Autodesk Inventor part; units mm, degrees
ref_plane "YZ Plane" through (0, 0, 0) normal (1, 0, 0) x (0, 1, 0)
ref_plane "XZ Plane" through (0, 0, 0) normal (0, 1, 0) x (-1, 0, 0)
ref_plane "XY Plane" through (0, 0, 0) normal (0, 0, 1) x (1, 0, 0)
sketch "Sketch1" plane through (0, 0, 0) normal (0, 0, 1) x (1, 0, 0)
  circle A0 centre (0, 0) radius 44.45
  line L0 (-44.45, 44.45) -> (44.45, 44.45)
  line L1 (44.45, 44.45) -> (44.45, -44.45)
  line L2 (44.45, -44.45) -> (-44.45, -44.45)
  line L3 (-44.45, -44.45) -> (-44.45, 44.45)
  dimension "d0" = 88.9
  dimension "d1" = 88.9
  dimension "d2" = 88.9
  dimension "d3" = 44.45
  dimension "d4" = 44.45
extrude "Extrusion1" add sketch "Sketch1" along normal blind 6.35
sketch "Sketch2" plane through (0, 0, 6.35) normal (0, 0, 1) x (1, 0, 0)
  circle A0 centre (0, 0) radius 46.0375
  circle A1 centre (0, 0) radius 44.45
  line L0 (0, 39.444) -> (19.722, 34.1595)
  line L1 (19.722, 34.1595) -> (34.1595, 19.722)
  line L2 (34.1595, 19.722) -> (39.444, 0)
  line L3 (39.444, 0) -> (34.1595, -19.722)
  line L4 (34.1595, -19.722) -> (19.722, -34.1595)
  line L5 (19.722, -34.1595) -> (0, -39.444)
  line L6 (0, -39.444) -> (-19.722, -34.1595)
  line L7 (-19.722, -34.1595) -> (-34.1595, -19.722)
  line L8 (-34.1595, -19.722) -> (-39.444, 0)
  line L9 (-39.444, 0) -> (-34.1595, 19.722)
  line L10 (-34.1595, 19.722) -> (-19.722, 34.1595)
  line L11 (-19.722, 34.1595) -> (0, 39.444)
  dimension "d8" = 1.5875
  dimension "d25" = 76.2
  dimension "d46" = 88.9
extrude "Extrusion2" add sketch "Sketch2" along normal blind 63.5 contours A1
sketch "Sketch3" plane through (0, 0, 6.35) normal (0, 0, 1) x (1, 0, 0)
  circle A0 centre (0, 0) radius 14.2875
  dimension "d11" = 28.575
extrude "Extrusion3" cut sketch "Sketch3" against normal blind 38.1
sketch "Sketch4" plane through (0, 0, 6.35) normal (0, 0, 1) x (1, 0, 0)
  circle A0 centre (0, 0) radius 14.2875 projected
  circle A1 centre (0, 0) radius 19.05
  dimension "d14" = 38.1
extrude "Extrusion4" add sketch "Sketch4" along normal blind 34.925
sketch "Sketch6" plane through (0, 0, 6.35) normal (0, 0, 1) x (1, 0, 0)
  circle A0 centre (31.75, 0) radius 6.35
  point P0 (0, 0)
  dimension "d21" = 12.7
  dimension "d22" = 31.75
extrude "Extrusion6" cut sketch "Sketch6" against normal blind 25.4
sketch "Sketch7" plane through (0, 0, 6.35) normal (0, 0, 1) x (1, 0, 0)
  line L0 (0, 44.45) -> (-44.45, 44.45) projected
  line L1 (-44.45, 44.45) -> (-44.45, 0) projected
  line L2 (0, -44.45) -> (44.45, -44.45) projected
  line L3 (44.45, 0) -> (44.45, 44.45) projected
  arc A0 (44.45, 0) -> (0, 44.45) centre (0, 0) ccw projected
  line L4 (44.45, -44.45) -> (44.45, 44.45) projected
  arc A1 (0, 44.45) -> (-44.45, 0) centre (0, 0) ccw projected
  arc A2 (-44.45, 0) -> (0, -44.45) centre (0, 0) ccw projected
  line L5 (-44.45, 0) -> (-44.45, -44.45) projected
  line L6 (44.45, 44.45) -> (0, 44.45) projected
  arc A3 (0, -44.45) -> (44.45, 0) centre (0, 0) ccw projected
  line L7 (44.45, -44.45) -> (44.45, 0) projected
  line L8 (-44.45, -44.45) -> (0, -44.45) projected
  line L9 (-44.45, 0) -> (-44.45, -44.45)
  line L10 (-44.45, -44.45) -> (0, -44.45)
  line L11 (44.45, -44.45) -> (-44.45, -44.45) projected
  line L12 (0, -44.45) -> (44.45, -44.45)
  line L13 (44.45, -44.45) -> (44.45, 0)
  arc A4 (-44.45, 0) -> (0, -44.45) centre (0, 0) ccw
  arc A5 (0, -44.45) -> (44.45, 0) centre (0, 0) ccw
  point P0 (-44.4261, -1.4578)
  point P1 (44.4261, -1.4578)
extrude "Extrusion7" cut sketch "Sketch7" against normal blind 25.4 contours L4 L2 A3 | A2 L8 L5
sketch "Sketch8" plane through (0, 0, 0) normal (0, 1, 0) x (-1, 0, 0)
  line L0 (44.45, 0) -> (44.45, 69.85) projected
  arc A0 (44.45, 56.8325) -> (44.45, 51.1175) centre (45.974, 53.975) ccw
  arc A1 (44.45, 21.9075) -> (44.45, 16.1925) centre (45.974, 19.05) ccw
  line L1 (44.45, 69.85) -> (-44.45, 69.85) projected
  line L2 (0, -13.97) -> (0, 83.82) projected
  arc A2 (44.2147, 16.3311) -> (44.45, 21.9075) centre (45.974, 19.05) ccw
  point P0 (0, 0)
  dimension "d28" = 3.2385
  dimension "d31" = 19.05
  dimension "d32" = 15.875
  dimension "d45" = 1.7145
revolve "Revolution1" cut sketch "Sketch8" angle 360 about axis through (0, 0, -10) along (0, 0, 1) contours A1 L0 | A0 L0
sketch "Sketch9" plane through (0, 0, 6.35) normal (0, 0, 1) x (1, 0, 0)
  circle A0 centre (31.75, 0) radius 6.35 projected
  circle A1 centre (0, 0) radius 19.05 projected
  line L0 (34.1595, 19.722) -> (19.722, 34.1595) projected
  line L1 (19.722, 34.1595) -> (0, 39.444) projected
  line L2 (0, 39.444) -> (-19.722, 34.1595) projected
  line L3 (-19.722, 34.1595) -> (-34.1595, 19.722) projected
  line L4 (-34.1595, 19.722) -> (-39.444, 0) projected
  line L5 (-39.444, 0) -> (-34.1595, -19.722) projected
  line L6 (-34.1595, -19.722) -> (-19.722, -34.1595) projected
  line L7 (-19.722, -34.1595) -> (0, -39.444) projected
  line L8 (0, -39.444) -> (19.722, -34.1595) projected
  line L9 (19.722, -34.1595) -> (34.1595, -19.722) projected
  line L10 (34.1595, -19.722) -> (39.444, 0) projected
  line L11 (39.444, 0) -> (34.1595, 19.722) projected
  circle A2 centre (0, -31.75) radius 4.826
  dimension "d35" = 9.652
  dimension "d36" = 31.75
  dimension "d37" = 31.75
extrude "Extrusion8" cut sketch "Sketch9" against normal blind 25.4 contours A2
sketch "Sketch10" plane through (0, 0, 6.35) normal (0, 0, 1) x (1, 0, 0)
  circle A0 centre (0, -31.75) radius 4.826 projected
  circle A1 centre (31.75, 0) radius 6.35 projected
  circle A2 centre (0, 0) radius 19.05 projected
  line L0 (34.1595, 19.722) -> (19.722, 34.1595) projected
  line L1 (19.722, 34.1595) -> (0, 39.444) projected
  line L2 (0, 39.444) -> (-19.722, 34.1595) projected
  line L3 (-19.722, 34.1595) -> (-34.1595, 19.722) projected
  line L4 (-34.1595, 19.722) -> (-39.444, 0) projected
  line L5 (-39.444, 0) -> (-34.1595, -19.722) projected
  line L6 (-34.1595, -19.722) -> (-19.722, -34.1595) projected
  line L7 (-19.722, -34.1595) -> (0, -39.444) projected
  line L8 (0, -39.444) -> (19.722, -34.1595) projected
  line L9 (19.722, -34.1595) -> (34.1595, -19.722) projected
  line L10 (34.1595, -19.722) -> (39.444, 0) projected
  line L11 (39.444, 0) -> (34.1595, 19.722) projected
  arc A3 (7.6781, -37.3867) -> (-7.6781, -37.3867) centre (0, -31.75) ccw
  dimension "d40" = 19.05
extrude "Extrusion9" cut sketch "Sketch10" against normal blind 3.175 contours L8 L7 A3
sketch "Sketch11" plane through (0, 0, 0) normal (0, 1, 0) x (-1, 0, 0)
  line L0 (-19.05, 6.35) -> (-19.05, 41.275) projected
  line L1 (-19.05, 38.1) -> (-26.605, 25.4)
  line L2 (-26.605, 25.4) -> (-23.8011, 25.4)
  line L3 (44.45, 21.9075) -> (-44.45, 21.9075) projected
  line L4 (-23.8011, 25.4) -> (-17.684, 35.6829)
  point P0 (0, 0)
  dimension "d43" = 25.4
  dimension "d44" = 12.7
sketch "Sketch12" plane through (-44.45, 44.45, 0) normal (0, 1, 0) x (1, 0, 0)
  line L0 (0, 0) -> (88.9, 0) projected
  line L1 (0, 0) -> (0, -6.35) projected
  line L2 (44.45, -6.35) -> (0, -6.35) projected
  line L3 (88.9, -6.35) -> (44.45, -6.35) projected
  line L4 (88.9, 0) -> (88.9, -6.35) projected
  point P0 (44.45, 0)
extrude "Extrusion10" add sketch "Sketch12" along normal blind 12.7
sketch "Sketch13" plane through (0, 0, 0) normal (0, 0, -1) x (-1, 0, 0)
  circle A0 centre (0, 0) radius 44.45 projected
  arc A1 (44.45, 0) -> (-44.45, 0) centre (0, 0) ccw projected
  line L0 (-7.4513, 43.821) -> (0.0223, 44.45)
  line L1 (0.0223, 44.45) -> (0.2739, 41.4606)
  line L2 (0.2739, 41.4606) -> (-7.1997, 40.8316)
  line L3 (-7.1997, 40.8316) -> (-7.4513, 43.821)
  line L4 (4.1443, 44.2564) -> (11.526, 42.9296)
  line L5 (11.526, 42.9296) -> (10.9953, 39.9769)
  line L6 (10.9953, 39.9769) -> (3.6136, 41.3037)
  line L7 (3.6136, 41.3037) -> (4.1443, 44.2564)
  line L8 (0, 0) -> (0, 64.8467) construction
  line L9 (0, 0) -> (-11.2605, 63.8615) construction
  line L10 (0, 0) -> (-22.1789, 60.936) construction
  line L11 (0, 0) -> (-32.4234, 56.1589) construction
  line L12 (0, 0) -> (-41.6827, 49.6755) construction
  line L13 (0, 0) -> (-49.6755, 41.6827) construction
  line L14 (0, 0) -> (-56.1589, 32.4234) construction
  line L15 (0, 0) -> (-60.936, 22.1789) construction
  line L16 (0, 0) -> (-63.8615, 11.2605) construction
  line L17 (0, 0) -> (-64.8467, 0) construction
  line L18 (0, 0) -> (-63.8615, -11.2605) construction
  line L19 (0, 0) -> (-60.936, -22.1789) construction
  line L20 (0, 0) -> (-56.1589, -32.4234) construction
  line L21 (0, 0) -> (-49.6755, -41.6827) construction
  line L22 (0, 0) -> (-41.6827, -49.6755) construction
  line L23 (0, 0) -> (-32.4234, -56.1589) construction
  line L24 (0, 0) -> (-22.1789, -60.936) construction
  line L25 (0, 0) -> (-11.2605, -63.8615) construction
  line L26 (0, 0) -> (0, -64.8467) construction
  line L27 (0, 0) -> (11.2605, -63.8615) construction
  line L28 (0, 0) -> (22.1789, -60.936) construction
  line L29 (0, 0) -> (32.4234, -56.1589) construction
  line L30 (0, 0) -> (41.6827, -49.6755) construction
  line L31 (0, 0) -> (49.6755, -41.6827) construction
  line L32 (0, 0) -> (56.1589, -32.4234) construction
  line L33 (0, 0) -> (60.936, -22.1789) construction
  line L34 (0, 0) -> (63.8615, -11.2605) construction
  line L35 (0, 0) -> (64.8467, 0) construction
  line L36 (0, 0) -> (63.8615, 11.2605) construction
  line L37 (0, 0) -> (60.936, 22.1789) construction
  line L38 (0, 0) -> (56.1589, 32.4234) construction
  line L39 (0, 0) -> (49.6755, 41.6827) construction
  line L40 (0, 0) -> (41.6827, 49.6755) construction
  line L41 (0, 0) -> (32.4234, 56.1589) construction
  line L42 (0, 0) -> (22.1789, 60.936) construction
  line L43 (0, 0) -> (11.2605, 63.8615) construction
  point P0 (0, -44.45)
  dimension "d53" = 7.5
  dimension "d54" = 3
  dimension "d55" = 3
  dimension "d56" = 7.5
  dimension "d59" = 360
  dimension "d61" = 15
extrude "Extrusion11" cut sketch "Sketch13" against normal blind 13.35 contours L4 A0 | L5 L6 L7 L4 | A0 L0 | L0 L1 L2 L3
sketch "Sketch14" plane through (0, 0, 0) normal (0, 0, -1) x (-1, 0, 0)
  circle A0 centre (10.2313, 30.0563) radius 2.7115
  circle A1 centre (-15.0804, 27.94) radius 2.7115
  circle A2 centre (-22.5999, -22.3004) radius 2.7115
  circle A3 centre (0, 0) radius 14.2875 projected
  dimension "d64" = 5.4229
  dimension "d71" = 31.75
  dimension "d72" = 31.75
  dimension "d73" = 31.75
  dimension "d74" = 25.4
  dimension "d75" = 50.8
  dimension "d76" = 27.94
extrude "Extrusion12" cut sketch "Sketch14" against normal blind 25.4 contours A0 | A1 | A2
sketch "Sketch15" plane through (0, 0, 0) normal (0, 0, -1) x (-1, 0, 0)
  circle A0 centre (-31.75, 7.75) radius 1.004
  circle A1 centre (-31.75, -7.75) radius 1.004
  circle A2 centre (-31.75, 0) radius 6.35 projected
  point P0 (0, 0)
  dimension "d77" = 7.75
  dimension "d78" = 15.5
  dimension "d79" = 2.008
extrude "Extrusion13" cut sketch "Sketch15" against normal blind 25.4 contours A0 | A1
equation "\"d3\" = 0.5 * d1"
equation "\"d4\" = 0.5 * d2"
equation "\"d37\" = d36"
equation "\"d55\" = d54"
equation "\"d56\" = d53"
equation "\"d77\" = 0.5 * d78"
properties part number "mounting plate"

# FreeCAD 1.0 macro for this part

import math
import FreeCAD as App
import Part
import Sketcher
Q = App.Units.Quantity

doc = App.newDocument("Part")
params = doc.addObject("Spreadsheet::Sheet", "Params")
for row, (alias, value) in enumerate([
    ("sketch1_width", "3.5 in"),
    ("pad1_length", "0.25 in"),
    ("sketch2_diameter", "3.5 in"),
    ("pad2_length", "2.5 in"),
    ("sketch3_diameter", "1.125 in"),
    ("pocket1_length", "1.5 in"),
    ("sketch4_diameter", "1.5 in"),
    ("sketch4_diameter2", "1.125 in"),
    ("pad3_length", "1.375 in"),
    ("sketch5_diameter", "0.5 in"),
    ("pocket2_length", "1 in"),
    ("sketch6_radius", "1.75 in"),
    ("pocket3_length", "1 in"),
    ("sketch7_height", "0.225 in"),
    ("groove_angle", "360 deg"),
    ("sketch8_diameter", "0.38 in"),
    ("pocket4_length", "1 in"),
    ("sketch9_radius", "0.375 in"),
    ("sketch9_diameter", "0.38 in"),
    ("pocket5_length", "0.125 in"),
    ("sketch10_width", "3.5 in"),
    ("sketch10_height", "0.25 in"),
    ("pad4_length", "0.5 in"),
    ("sketch11_radius", "1.75 in"),
    ("pocket6_length", "0.5255906 in"),
    ("pocket7_length", "1 in"),
    ("pocket8_length", "1 in"),
], start=1):
    params.set(f"A{row}", alias)
    params.set(f"B{row}", "=" + value)
    params.setAlias(f"B{row}", alias)

body = doc.addObject("PartDesign::Body", "Body")

# Sketch on XY plane
sketch1 = body.newObject("Sketcher::SketchObject", "Sketch")
sketch1.AttachmentSupport = (doc.getObject("XY_Plane"), [""])
sketch1.MapMode = "FlatFace"
sketch1.addGeometry([
    Part.LineSegment(App.Vector(44, -44, 0), App.Vector(44, 44, 0)),
    Part.LineSegment(App.Vector(44, 44, 0), App.Vector(-44, 44, 0)),
    Part.LineSegment(App.Vector(-44, 44, 0), App.Vector(-44, -44, 0)),
    Part.LineSegment(App.Vector(-44, -44, 0), App.Vector(44, -44, 0)),
], False)
sketch1.addConstraint([
    Sketcher.Constraint("Coincident", 0, 2, 1, 1),
    Sketcher.Constraint("Coincident", 1, 2, 2, 1),
    Sketcher.Constraint("Coincident", 2, 2, 3, 1),
    Sketcher.Constraint("Coincident", 3, 2, 0, 1),
    Sketcher.Constraint("Vertical", 0),
    Sketcher.Constraint("Horizontal", 1),
    Sketcher.Constraint("Vertical", 2),
    Sketcher.Constraint("Horizontal", 3),
    Sketcher.Constraint("Symmetric", 0, 2, 2, 2, -1, 1),
    Sketcher.Constraint("Equal", 3, 0),
    Sketcher.Constraint("DistanceX", 1, 2, 1, 1, Q("3.5 in")),
])
sketch1.setExpression("Constraints[10]", "Params.sketch1_width")
pad1 = body.newObject("PartDesign::Pad", "Pad")
pad1.Profile = sketch1
pad1.setExpression("Length", "Params.pad1_length")

# Sketch on XY plane
sketch2 = body.newObject("Sketcher::SketchObject", "Sketch001")
sketch2.AttachmentSupport = (doc.getObject("XY_Plane"), [""])
sketch2.MapMode = "FlatFace"
sketch2.AttachmentOffset = App.Placement(App.Vector(0, 0, 0.25 * 25.4), App.Rotation())
sketch2.addGeometry([
    Part.Circle(App.Vector(0, 0, 0), App.Vector(0, 0, 1), 44),  # 0
    Part.LineSegment(App.Vector(-20, 34, 0), App.Vector(0, 39, 0)),  # 1
    Part.LineSegment(App.Vector(0, 39, 0), App.Vector(20, 34, 0)),  # 2
    Part.LineSegment(App.Vector(20, 34, 0), App.Vector(34, 20, 0)),  # 3
    Part.LineSegment(App.Vector(34, 20, 0), App.Vector(39, 0, 0)),  # 4
    Part.LineSegment(App.Vector(39, 0, 0), App.Vector(34, -20, 0)),  # 5
    Part.LineSegment(App.Vector(34, -20, 0), App.Vector(20, -34, 0)),  # 6
    Part.LineSegment(App.Vector(20, -34, 0), App.Vector(0, -39, 0)),  # 7
    Part.LineSegment(App.Vector(0, -39, 0), App.Vector(-20, -34, 0)),  # 8
    Part.LineSegment(App.Vector(-20, -34, 0), App.Vector(-34, -20, 0)),  # 9
    Part.LineSegment(App.Vector(-34, -20, 0), App.Vector(-39, 0, 0)),  # 10
    Part.LineSegment(App.Vector(-39, 0, 0), App.Vector(-34, 20, 0)),  # 11
    Part.LineSegment(App.Vector(-34, 20, 0), App.Vector(-20, 34, 0)),  # 12
], False)
sketch2.addConstraint([
    Sketcher.Constraint("Coincident", 1, 2, 2, 1),
    Sketcher.Constraint("Coincident", 2, 2, 3, 1),
    Sketcher.Constraint("Coincident", 3, 2, 4, 1),
    Sketcher.Constraint("Coincident", 4, 2, 5, 1),
    Sketcher.Constraint("Coincident", 5, 2, 6, 1),
    Sketcher.Constraint("Coincident", 6, 2, 7, 1),
    Sketcher.Constraint("Coincident", 7, 2, 8, 1),
    Sketcher.Constraint("Coincident", 8, 2, 9, 1),
    Sketcher.Constraint("Coincident", 9, 2, 10, 1),
    Sketcher.Constraint("Coincident", 10, 2, 11, 1),
    Sketcher.Constraint("Coincident", 11, 2, 12, 1),
    Sketcher.Constraint("Coincident", 12, 2, 1, 1),
    Sketcher.Constraint("Coincident", 0, 3, -1, 1),
    Sketcher.Constraint("Symmetric", 1, 2, 7, 2, -1, 1),
    Sketcher.Constraint("Symmetric", 2, 2, 8, 2, -1, 1),
    Sketcher.Constraint("Symmetric", 3, 2, 9, 2, -1, 1),
    Sketcher.Constraint("Symmetric", 4, 2, 10, 2, -1, 1),
    Sketcher.Constraint("Symmetric", 5, 2, 11, 2, -1, 1),
    Sketcher.Constraint("Symmetric", 6, 2, 12, 2, -1, 1),
    Sketcher.Constraint("Symmetric", 6, 2, 8, 2, -2),
    Sketcher.Constraint("Symmetric", 5, 2, 9, 2, -2),
    Sketcher.Constraint("PointOnObject", 1, 2, -2),
    Sketcher.Constraint("PointOnObject", 4, 2, -1),
    Sketcher.Constraint("Perpendicular", 1, 4),
    Sketcher.Constraint("Perpendicular", 3, 6),
    Sketcher.Constraint("Equal", 2, 3),
    Sketcher.Constraint("Equal", 3, 4),
    Sketcher.Constraint("Diameter", 0, Q("3.5 in")),
    Sketcher.Constraint("Angle", 1, Q("15 deg")),
    Sketcher.Constraint("DistanceX", 2, 2, 3, 2, Q("0.5684 in")),
])
sketch2.setExpression("Constraints[27]", "Params.sketch2_diameter")
pad2 = body.newObject("PartDesign::Pad", "Pad001")
pad2.Profile = sketch2
pad2.setExpression("Length", "Params.pad2_length")

# Sketch on XY plane
sketch3 = body.newObject("Sketcher::SketchObject", "Sketch002")
sketch3.AttachmentSupport = (doc.getObject("XY_Plane"), [""])
sketch3.MapMode = "FlatFace"
sketch3.AttachmentOffset = App.Placement(App.Vector(0, 0, 0.25 * 25.4), App.Rotation())
sketch3.addGeometry(Part.Circle(App.Vector(0, 0, 0), App.Vector(0, 0, 1), 14), False)
sketch3.addConstraint([
    Sketcher.Constraint("Coincident", 0, 3, -1, 1),
    Sketcher.Constraint("Diameter", 0, Q("1.125 in")),
])
sketch3.setExpression("Constraints[1]", "Params.sketch3_diameter")
pocket1 = body.newObject("PartDesign::Pocket", "Pocket")
pocket1.Profile = sketch3
pocket1.setExpression("Length", "Params.pocket1_length")

# Sketch on XY plane
sketch4 = body.newObject("Sketcher::SketchObject", "Sketch003")
sketch4.AttachmentSupport = (doc.getObject("XY_Plane"), [""])
sketch4.MapMode = "FlatFace"
sketch4.AttachmentOffset = App.Placement(App.Vector(0, 0, 0.25 * 25.4), App.Rotation())
sketch4.addGeometry([
    Part.Circle(App.Vector(0, 0, 0), App.Vector(0, 0, 1), 19),
    Part.Circle(App.Vector(0, 0, 0), App.Vector(0, 0, 1), 14),
], False)
sketch4.addConstraint([
    Sketcher.Constraint("Coincident", 0, 3, -1, 1),
    Sketcher.Constraint("Coincident", 1, 3, -1, 1),
    Sketcher.Constraint("Diameter", 0, Q("1.5 in")),
    Sketcher.Constraint("Diameter", 1, Q("1.125 in")),
])
sketch4.setExpression("Constraints[2]", "Params.sketch4_diameter")
sketch4.setExpression("Constraints[3]", "Params.sketch4_diameter2")
pad3 = body.newObject("PartDesign::Pad", "Pad002")
pad3.Profile = sketch4
pad3.setExpression("Length", "Params.pad3_length")

# Sketch on XY plane
sketch5 = body.newObject("Sketcher::SketchObject", "Sketch004")
sketch5.AttachmentSupport = (doc.getObject("XY_Plane"), [""])
sketch5.MapMode = "FlatFace"
sketch5.AttachmentOffset = App.Placement(App.Vector(0, 0, 0.25 * 25.4), App.Rotation())
sketch5.addGeometry(Part.Circle(App.Vector(32, 0, 0), App.Vector(0, 0, 1), 6), False)
sketch5.addConstraint([
    Sketcher.Constraint("PointOnObject", 0, 3, -1),
    Sketcher.Constraint("Diameter", 0, Q("0.5 in")),
    Sketcher.Constraint("DistanceX", -1, 1, 0, 3, Q("1.25 in")),
])
sketch5.setExpression("Constraints[1]", "Params.sketch5_diameter")
pocket2 = body.newObject("PartDesign::Pocket", "Pocket001")
pocket2.Profile = sketch5
pocket2.setExpression("Length", "Params.pocket2_length")

# Sketch on XY plane
sketch6 = body.newObject("Sketcher::SketchObject", "Sketch005")
sketch6.AttachmentSupport = (doc.getObject("XY_Plane"), [""])
sketch6.MapMode = "FlatFace"
sketch6.AttachmentOffset = App.Placement(App.Vector(0, 0, 0.25 * 25.4), App.Rotation())
sketch6.addGeometry([
    Part.LineSegment(App.Vector(44, -44, 0), App.Vector(44, 0, 0)),  # 0
    Part.ArcOfCircle(Part.Circle(App.Vector(0, 0, 0), App.Vector(0, 0, 1), 44), math.radians(-90), math.radians(0)),  # 1
    Part.LineSegment(App.Vector(0, -44, 0), App.Vector(44, -44, 0)),  # 2
    Part.ArcOfCircle(Part.Circle(App.Vector(0, 0, 0), App.Vector(0, 0, 1), 44), math.radians(180), math.radians(270)),  # 3
    Part.LineSegment(App.Vector(-44, 0, 0), App.Vector(-44, -44, 0)),  # 4
    Part.LineSegment(App.Vector(-44, -44, 0), App.Vector(0, -44, 0)),  # 5
], False)
sketch6.addConstraint([
    Sketcher.Constraint("Tangent", 0, 2, 1, 2),
    Sketcher.Constraint("Tangent", 1, 1, 2, 1),
    Sketcher.Constraint("Coincident", 2, 2, 0, 1),
    Sketcher.Constraint("Tangent", 3, 1, 4, 1),
    Sketcher.Constraint("Coincident", 4, 2, 5, 1),
    Sketcher.Constraint("Tangent", 5, 2, 3, 2),
    Sketcher.Constraint("Vertical", 0),
    Sketcher.Constraint("Horizontal", 2),
    Sketcher.Constraint("Vertical", 4),
    Sketcher.Constraint("Horizontal", 5),
    Sketcher.Constraint("Coincident", 1, 3, -1, 1),
    Sketcher.Constraint("Coincident", 3, 3, -1, 1),
    Sketcher.Constraint("Equal", 1, 3),
    Sketcher.Constraint("Radius", 1, Q("1.75 in")),
])
sketch6.setExpression("Constraints[13]", "Params.sketch6_radius")
pocket3 = body.newObject("PartDesign::Pocket", "Pocket002")
pocket3.Profile = sketch6
pocket3.setExpression("Length", "Params.pocket3_length")

# Sketch on XZ plane
sketch7 = body.newObject("Sketcher::SketchObject", "Sketch006")
sketch7.AttachmentSupport = (doc.getObject("XZ_Plane"), [""])
sketch7.MapMode = "FlatFace"
sketch7.addGeometry([
    Part.ArcOfCircle(Part.Circle(App.Vector(-46, 19.1, 0), App.Vector(0, 0, 1), 3.2), math.radians(-62), math.radians(62)),
    Part.LineSegment(App.Vector(-44.5, 16.2, 0), App.Vector(-44.5, 21.9, 0)),
    Part.ArcOfCircle(Part.Circle(App.Vector(-46, 54, 0), App.Vector(0, 0, 1), 3.2), math.radians(-62), math.radians(62)),
    Part.LineSegment(App.Vector(-44.5, 51.1, 0), App.Vector(-44.5, 56.8, 0)),
], False)
sketch7.addConstraint([
    Sketcher.Constraint("Coincident", 0, 1, 1, 1),
    Sketcher.Constraint("Coincident", 1, 2, 0, 2),
    Sketcher.Constraint("Coincident", 2, 1, 3, 1),
    Sketcher.Constraint("Coincident", 3, 2, 2, 2),
    Sketcher.Constraint("Vertical", 1),
    Sketcher.Constraint("Vertical", 3),
    Sketcher.Constraint("Equal", 0, 2),
    Sketcher.Constraint("Vertical", 0, 3, 2, 3),
    Sketcher.Constraint("Vertical", 1, 2, 2, 1),
    Sketcher.Constraint("Radius", 0, Q("0.1275 in")),
    Sketcher.Constraint("DistanceY", -1, 1, 0, 3, Q("0.75 in")),
    Sketcher.Constraint("DistanceY", 0, 1, 3, 2, Q("1.6 in")),
    Sketcher.Constraint("DistanceY", 1, 1, 1, 2, Q("0.225 in")),
    Sketcher.Constraint("DistanceX", 0, 3, -1, 1, Q("1.81 in")),
])
sketch7.setExpression("Constraints[12]", "Params.sketch7_height")
groove = body.newObject("PartDesign::Groove", "Groove")
groove.Profile = sketch7
groove.ReferenceAxis = (sketch7, ["V_Axis"])
groove.setExpression("Angle", "Params.groove_angle")

# Sketch on XY plane
sketch8 = body.newObject("Sketcher::SketchObject", "Sketch007")
sketch8.AttachmentSupport = (doc.getObject("XY_Plane"), [""])
sketch8.MapMode = "FlatFace"
sketch8.AttachmentOffset = App.Placement(App.Vector(0, 0, 0.25 * 25.4), App.Rotation())
sketch8.addGeometry(Part.Circle(App.Vector(0, -31.8, 0), App.Vector(0, 0, 1), 4.8), False)
sketch8.addConstraint([
    Sketcher.Constraint("PointOnObject", 0, 3, -2),
    Sketcher.Constraint("Diameter", 0, Q("0.38 in")),
    Sketcher.Constraint("DistanceY", 0, 3, -1, 1, Q("1.25 in")),
])
sketch8.setExpression("Constraints[1]", "Params.sketch8_diameter")
pocket4 = body.newObject("PartDesign::Pocket", "Pocket003")
pocket4.Profile = sketch8
pocket4.setExpression("Length", "Params.pocket4_length")

# Sketch on XY plane
sketch9 = body.newObject("Sketcher::SketchObject", "Sketch008")
sketch9.AttachmentSupport = (doc.getObject("XY_Plane"), [""])
sketch9.MapMode = "FlatFace"
sketch9.AttachmentOffset = App.Placement(App.Vector(0, 0, 0.25 * 25.4), App.Rotation())
sketch9.addGeometry([
    Part.LineSegment(App.Vector(0, -39.4, 0), App.Vector(7.7, -37.4, 0)),
    Part.ArcOfCircle(Part.Circle(App.Vector(0, -31.8, 0), App.Vector(0, 0, 1), 9.5), math.radians(-36), math.radians(216)),
    Part.LineSegment(App.Vector(-7.7, -37.4, 0), App.Vector(0, -39.4, 0)),
    Part.Circle(App.Vector(0, -31.8, 0), App.Vector(0, 0, 1), 4.8),
], False)
sketch9.addConstraint([
    Sketcher.Constraint("Coincident", 0, 2, 1, 1),
    Sketcher.Constraint("Coincident", 1, 2, 2, 1),
    Sketcher.Constraint("Coincident", 2, 2, 0, 1),
    Sketcher.Constraint("Coincident", 3, 3, 1, 3),
    Sketcher.Constraint("Symmetric", 0, 2, 1, 2, -2),
    Sketcher.Constraint("PointOnObject", 2, 2, -2),
    Sketcher.Constraint("Radius", 1, Q("0.375 in")),
    Sketcher.Constraint("Diameter", 3, Q("0.38 in")),
    Sketcher.Constraint("Angle", 0, Q("15 deg")),
    Sketcher.Constraint("DistanceY", 1, 3, -1, 1, Q("1.25 in")),
    Sketcher.Constraint("DistanceY", 2, 2, 1, 2, Q("0.081 in")),
])
sketch9.setExpression("Constraints[6]", "Params.sketch9_radius")
sketch9.setExpression("Constraints[7]", "Params.sketch9_diameter")
pocket5 = body.newObject("PartDesign::Pocket", "Pocket004")
pocket5.Profile = sketch9
pocket5.setExpression("Length", "Params.pocket5_length")

# Sketch on XZ plane
sketch10 = body.newObject("Sketcher::SketchObject", "Sketch009")
sketch10.AttachmentSupport = (doc.getObject("XZ_Plane"), [""])
sketch10.MapMode = "FlatFace"
sketch10.AttachmentOffset = App.Placement(App.Vector(0, 0, -1.75 * 25.4), App.Rotation())
sketch10.addGeometry([
    Part.LineSegment(App.Vector(44, 0, 0), App.Vector(-44, 0, 0)),
    Part.LineSegment(App.Vector(-44, 0, 0), App.Vector(-44, 6, 0)),
    Part.LineSegment(App.Vector(-44, 6, 0), App.Vector(44, 6, 0)),
    Part.LineSegment(App.Vector(44, 6, 0), App.Vector(44, 0, 0)),
], False)
sketch10.addConstraint([
    Sketcher.Constraint("Coincident", 0, 2, 1, 1),
    Sketcher.Constraint("Coincident", 1, 2, 2, 1),
    Sketcher.Constraint("Coincident", 2, 2, 3, 1),
    Sketcher.Constraint("Coincident", 3, 2, 0, 1),
    Sketcher.Constraint("Horizontal", 0),
    Sketcher.Constraint("Vertical", 1),
    Sketcher.Constraint("Horizontal", 2),
    Sketcher.Constraint("Vertical", 3),
    Sketcher.Constraint("Symmetric", 0, 2, 3, 2, -1, 1),
    Sketcher.Constraint("DistanceX", 0, 2, 0, 1, Q("3.5 in")),
    Sketcher.Constraint("DistanceY", 1, 1, 1, 2, Q("0.25 in")),
])
sketch10.setExpression("Constraints[9]", "Params.sketch10_width")
sketch10.setExpression("Constraints[10]", "Params.sketch10_height")
pad4 = body.newObject("PartDesign::Pad", "Pad003")
pad4.Profile = sketch10
pad4.setExpression("Length", "Params.pad4_length")
pad4.Reversed = True

# Sketch on XY plane
sketch11 = body.newObject("Sketcher::SketchObject", "Sketch010")
sketch11.AttachmentSupport = (doc.getObject("XY_Plane"), [""])
sketch11.MapMode = "FlatFace"
sketch11.addGeometry([
    Part.ArcOfCircle(Part.Circle(App.Vector(0, 0, 0), App.Vector(0, 0, 1), 44.5), math.radians(95.35), math.radians(105.03)),  # 0
    Part.LineSegment(App.Vector(-4.1, 44.3, 0), App.Vector(-3.6, 41.3, 0)),  # 1
    Part.LineSegment(App.Vector(-3.6, 41.3, 0), App.Vector(-11, 40, 0)),  # 2
    Part.LineSegment(App.Vector(-11, 40, 0), App.Vector(-11.5, 42.9, 0)),  # 3
    Part.ArcOfCircle(Part.Circle(App.Vector(0, 0, 0), App.Vector(0, 0, 1), 44.5), math.radians(80.35), math.radians(90.03)),  # 4
    Part.LineSegment(App.Vector(7.5, 43.8, 0), App.Vector(7.2, 40.8, 0)),  # 5
    Part.LineSegment(App.Vector(7.2, 40.8, 0), App.Vector(-0.3, 41.5, 0)),  # 6
    Part.LineSegment(App.Vector(-0.3, 41.5, 0), App.Vector(0, 44.5, 0)),  # 7
], False)
sketch11.addConstraint([
    Sketcher.Constraint("Coincident", 0, 1, 1, 1),
    Sketcher.Constraint("Coincident", 1, 2, 2, 1),
    Sketcher.Constraint("Coincident", 2, 2, 3, 1),
    Sketcher.Constraint("Coincident", 3, 2, 0, 2),
    Sketcher.Constraint("Coincident", 4, 1, 5, 1),
    Sketcher.Constraint("Coincident", 5, 2, 6, 1),
    Sketcher.Constraint("Coincident", 6, 2, 7, 1),
    Sketcher.Constraint("Coincident", 7, 2, 4, 2),
    Sketcher.Constraint("Coincident", 0, 3, -1, 1),
    Sketcher.Constraint("Coincident", 4, 3, -1, 1),
    Sketcher.Constraint("Equal", 0, 4),
    Sketcher.Constraint("Perpendicular", 1, 2),
    Sketcher.Constraint("Perpendicular", 2, 3),
    Sketcher.Constraint("Perpendicular", 5, 6),
    Sketcher.Constraint("Perpendicular", 6, 7),
    Sketcher.Constraint("Equal", 1, 3),
    Sketcher.Constraint("Equal", 3, 5),
    Sketcher.Constraint("Equal", 2, 6),
    Sketcher.Constraint("Equal", 5, 7),
    Sketcher.Constraint("Radius", 0, Q("1.75 in")),
    Sketcher.Constraint("Distance", 1, Q("0.1181 in")),
    Sketcher.Constraint("Distance", 2, 7.5),
    Sketcher.Constraint("Angle", 1, Q("-79.8108 deg")),
    Sketcher.Constraint("Angle", 5, Q("-94.811 deg")),
])
sketch11.setExpression("Constraints[19]", "Params.sketch11_radius")
pocket6 = body.newObject("PartDesign::Pocket", "Pocket005")
pocket6.Profile = sketch11
pocket6.setExpression("Length", "Params.pocket6_length")
pocket6.Reversed = True

# Sketch on XY plane
sketch12 = body.newObject("Sketcher::SketchObject", "Sketch011")
sketch12.AttachmentSupport = (doc.getObject("XY_Plane"), [""])
sketch12.MapMode = "FlatFace"
sketch12.addGeometry([
    Part.Circle(App.Vector(-10.2, 30.1, 0), App.Vector(0, 0, 1), 2.7),
    Part.Circle(App.Vector(15.1, 27.9, 0), App.Vector(0, 0, 1), 2.7),
    Part.Circle(App.Vector(22.6, -22.3, 0), App.Vector(0, 0, 1), 2.7),
], False)
sketch12.addConstraint([
    Sketcher.Constraint("Equal", 0, 1),
    Sketcher.Constraint("Equal", 1, 2),
    Sketcher.Constraint("Diameter", 0, Q("0.2135 in")),
    Sketcher.Constraint("DistanceY", -1, 1, 1, 3, Q("1.1 in")),
    Sketcher.Constraint("DistanceX", 0, 3, -1, 1, Q("0.4028 in")),
    Sketcher.Constraint("DistanceY", -1, 1, 0, 3, 30.0563),
    Sketcher.Constraint("DistanceX", -1, 1, 1, 3, 15.0804),
    Sketcher.Constraint("DistanceX", -1, 1, 2, 3, 22.6),
    Sketcher.Constraint("DistanceY", 2, 3, -1, 1, 22.3004),
])
pocket7 = body.newObject("PartDesign::Pocket", "Pocket006")
pocket7.Profile = sketch12
pocket7.setExpression("Length", "Params.pocket7_length")
pocket7.Reversed = True

# Sketch on XY plane
sketch13 = body.newObject("Sketcher::SketchObject", "Sketch012")
sketch13.AttachmentSupport = (doc.getObject("XY_Plane"), [""])
sketch13.MapMode = "FlatFace"
sketch13.addGeometry([
    Part.Circle(App.Vector(31.8, 7.8, 0), App.Vector(0, 0, 1), 1),
    Part.Circle(App.Vector(31.8, -7.8, 0), App.Vector(0, 0, 1), 1),
], False)
sketch13.addConstraint([
    Sketcher.Constraint("Equal", 0, 1),
    Sketcher.Constraint("Symmetric", 0, 3, 1, 3, -1),
    Sketcher.Constraint("Diameter", 0, 2.008),
    Sketcher.Constraint("DistanceX", -1, 1, 0, 3, Q("1.25 in")),
    Sketcher.Constraint("DistanceY", -1, 1, 0, 3, 7.75),
])
pocket8 = body.newObject("PartDesign::Pocket", "Pocket007")
pocket8.Profile = sketch13
pocket8.setExpression("Length", "Params.pocket8_length")
pocket8.Reversed = True

doc.recompute()
